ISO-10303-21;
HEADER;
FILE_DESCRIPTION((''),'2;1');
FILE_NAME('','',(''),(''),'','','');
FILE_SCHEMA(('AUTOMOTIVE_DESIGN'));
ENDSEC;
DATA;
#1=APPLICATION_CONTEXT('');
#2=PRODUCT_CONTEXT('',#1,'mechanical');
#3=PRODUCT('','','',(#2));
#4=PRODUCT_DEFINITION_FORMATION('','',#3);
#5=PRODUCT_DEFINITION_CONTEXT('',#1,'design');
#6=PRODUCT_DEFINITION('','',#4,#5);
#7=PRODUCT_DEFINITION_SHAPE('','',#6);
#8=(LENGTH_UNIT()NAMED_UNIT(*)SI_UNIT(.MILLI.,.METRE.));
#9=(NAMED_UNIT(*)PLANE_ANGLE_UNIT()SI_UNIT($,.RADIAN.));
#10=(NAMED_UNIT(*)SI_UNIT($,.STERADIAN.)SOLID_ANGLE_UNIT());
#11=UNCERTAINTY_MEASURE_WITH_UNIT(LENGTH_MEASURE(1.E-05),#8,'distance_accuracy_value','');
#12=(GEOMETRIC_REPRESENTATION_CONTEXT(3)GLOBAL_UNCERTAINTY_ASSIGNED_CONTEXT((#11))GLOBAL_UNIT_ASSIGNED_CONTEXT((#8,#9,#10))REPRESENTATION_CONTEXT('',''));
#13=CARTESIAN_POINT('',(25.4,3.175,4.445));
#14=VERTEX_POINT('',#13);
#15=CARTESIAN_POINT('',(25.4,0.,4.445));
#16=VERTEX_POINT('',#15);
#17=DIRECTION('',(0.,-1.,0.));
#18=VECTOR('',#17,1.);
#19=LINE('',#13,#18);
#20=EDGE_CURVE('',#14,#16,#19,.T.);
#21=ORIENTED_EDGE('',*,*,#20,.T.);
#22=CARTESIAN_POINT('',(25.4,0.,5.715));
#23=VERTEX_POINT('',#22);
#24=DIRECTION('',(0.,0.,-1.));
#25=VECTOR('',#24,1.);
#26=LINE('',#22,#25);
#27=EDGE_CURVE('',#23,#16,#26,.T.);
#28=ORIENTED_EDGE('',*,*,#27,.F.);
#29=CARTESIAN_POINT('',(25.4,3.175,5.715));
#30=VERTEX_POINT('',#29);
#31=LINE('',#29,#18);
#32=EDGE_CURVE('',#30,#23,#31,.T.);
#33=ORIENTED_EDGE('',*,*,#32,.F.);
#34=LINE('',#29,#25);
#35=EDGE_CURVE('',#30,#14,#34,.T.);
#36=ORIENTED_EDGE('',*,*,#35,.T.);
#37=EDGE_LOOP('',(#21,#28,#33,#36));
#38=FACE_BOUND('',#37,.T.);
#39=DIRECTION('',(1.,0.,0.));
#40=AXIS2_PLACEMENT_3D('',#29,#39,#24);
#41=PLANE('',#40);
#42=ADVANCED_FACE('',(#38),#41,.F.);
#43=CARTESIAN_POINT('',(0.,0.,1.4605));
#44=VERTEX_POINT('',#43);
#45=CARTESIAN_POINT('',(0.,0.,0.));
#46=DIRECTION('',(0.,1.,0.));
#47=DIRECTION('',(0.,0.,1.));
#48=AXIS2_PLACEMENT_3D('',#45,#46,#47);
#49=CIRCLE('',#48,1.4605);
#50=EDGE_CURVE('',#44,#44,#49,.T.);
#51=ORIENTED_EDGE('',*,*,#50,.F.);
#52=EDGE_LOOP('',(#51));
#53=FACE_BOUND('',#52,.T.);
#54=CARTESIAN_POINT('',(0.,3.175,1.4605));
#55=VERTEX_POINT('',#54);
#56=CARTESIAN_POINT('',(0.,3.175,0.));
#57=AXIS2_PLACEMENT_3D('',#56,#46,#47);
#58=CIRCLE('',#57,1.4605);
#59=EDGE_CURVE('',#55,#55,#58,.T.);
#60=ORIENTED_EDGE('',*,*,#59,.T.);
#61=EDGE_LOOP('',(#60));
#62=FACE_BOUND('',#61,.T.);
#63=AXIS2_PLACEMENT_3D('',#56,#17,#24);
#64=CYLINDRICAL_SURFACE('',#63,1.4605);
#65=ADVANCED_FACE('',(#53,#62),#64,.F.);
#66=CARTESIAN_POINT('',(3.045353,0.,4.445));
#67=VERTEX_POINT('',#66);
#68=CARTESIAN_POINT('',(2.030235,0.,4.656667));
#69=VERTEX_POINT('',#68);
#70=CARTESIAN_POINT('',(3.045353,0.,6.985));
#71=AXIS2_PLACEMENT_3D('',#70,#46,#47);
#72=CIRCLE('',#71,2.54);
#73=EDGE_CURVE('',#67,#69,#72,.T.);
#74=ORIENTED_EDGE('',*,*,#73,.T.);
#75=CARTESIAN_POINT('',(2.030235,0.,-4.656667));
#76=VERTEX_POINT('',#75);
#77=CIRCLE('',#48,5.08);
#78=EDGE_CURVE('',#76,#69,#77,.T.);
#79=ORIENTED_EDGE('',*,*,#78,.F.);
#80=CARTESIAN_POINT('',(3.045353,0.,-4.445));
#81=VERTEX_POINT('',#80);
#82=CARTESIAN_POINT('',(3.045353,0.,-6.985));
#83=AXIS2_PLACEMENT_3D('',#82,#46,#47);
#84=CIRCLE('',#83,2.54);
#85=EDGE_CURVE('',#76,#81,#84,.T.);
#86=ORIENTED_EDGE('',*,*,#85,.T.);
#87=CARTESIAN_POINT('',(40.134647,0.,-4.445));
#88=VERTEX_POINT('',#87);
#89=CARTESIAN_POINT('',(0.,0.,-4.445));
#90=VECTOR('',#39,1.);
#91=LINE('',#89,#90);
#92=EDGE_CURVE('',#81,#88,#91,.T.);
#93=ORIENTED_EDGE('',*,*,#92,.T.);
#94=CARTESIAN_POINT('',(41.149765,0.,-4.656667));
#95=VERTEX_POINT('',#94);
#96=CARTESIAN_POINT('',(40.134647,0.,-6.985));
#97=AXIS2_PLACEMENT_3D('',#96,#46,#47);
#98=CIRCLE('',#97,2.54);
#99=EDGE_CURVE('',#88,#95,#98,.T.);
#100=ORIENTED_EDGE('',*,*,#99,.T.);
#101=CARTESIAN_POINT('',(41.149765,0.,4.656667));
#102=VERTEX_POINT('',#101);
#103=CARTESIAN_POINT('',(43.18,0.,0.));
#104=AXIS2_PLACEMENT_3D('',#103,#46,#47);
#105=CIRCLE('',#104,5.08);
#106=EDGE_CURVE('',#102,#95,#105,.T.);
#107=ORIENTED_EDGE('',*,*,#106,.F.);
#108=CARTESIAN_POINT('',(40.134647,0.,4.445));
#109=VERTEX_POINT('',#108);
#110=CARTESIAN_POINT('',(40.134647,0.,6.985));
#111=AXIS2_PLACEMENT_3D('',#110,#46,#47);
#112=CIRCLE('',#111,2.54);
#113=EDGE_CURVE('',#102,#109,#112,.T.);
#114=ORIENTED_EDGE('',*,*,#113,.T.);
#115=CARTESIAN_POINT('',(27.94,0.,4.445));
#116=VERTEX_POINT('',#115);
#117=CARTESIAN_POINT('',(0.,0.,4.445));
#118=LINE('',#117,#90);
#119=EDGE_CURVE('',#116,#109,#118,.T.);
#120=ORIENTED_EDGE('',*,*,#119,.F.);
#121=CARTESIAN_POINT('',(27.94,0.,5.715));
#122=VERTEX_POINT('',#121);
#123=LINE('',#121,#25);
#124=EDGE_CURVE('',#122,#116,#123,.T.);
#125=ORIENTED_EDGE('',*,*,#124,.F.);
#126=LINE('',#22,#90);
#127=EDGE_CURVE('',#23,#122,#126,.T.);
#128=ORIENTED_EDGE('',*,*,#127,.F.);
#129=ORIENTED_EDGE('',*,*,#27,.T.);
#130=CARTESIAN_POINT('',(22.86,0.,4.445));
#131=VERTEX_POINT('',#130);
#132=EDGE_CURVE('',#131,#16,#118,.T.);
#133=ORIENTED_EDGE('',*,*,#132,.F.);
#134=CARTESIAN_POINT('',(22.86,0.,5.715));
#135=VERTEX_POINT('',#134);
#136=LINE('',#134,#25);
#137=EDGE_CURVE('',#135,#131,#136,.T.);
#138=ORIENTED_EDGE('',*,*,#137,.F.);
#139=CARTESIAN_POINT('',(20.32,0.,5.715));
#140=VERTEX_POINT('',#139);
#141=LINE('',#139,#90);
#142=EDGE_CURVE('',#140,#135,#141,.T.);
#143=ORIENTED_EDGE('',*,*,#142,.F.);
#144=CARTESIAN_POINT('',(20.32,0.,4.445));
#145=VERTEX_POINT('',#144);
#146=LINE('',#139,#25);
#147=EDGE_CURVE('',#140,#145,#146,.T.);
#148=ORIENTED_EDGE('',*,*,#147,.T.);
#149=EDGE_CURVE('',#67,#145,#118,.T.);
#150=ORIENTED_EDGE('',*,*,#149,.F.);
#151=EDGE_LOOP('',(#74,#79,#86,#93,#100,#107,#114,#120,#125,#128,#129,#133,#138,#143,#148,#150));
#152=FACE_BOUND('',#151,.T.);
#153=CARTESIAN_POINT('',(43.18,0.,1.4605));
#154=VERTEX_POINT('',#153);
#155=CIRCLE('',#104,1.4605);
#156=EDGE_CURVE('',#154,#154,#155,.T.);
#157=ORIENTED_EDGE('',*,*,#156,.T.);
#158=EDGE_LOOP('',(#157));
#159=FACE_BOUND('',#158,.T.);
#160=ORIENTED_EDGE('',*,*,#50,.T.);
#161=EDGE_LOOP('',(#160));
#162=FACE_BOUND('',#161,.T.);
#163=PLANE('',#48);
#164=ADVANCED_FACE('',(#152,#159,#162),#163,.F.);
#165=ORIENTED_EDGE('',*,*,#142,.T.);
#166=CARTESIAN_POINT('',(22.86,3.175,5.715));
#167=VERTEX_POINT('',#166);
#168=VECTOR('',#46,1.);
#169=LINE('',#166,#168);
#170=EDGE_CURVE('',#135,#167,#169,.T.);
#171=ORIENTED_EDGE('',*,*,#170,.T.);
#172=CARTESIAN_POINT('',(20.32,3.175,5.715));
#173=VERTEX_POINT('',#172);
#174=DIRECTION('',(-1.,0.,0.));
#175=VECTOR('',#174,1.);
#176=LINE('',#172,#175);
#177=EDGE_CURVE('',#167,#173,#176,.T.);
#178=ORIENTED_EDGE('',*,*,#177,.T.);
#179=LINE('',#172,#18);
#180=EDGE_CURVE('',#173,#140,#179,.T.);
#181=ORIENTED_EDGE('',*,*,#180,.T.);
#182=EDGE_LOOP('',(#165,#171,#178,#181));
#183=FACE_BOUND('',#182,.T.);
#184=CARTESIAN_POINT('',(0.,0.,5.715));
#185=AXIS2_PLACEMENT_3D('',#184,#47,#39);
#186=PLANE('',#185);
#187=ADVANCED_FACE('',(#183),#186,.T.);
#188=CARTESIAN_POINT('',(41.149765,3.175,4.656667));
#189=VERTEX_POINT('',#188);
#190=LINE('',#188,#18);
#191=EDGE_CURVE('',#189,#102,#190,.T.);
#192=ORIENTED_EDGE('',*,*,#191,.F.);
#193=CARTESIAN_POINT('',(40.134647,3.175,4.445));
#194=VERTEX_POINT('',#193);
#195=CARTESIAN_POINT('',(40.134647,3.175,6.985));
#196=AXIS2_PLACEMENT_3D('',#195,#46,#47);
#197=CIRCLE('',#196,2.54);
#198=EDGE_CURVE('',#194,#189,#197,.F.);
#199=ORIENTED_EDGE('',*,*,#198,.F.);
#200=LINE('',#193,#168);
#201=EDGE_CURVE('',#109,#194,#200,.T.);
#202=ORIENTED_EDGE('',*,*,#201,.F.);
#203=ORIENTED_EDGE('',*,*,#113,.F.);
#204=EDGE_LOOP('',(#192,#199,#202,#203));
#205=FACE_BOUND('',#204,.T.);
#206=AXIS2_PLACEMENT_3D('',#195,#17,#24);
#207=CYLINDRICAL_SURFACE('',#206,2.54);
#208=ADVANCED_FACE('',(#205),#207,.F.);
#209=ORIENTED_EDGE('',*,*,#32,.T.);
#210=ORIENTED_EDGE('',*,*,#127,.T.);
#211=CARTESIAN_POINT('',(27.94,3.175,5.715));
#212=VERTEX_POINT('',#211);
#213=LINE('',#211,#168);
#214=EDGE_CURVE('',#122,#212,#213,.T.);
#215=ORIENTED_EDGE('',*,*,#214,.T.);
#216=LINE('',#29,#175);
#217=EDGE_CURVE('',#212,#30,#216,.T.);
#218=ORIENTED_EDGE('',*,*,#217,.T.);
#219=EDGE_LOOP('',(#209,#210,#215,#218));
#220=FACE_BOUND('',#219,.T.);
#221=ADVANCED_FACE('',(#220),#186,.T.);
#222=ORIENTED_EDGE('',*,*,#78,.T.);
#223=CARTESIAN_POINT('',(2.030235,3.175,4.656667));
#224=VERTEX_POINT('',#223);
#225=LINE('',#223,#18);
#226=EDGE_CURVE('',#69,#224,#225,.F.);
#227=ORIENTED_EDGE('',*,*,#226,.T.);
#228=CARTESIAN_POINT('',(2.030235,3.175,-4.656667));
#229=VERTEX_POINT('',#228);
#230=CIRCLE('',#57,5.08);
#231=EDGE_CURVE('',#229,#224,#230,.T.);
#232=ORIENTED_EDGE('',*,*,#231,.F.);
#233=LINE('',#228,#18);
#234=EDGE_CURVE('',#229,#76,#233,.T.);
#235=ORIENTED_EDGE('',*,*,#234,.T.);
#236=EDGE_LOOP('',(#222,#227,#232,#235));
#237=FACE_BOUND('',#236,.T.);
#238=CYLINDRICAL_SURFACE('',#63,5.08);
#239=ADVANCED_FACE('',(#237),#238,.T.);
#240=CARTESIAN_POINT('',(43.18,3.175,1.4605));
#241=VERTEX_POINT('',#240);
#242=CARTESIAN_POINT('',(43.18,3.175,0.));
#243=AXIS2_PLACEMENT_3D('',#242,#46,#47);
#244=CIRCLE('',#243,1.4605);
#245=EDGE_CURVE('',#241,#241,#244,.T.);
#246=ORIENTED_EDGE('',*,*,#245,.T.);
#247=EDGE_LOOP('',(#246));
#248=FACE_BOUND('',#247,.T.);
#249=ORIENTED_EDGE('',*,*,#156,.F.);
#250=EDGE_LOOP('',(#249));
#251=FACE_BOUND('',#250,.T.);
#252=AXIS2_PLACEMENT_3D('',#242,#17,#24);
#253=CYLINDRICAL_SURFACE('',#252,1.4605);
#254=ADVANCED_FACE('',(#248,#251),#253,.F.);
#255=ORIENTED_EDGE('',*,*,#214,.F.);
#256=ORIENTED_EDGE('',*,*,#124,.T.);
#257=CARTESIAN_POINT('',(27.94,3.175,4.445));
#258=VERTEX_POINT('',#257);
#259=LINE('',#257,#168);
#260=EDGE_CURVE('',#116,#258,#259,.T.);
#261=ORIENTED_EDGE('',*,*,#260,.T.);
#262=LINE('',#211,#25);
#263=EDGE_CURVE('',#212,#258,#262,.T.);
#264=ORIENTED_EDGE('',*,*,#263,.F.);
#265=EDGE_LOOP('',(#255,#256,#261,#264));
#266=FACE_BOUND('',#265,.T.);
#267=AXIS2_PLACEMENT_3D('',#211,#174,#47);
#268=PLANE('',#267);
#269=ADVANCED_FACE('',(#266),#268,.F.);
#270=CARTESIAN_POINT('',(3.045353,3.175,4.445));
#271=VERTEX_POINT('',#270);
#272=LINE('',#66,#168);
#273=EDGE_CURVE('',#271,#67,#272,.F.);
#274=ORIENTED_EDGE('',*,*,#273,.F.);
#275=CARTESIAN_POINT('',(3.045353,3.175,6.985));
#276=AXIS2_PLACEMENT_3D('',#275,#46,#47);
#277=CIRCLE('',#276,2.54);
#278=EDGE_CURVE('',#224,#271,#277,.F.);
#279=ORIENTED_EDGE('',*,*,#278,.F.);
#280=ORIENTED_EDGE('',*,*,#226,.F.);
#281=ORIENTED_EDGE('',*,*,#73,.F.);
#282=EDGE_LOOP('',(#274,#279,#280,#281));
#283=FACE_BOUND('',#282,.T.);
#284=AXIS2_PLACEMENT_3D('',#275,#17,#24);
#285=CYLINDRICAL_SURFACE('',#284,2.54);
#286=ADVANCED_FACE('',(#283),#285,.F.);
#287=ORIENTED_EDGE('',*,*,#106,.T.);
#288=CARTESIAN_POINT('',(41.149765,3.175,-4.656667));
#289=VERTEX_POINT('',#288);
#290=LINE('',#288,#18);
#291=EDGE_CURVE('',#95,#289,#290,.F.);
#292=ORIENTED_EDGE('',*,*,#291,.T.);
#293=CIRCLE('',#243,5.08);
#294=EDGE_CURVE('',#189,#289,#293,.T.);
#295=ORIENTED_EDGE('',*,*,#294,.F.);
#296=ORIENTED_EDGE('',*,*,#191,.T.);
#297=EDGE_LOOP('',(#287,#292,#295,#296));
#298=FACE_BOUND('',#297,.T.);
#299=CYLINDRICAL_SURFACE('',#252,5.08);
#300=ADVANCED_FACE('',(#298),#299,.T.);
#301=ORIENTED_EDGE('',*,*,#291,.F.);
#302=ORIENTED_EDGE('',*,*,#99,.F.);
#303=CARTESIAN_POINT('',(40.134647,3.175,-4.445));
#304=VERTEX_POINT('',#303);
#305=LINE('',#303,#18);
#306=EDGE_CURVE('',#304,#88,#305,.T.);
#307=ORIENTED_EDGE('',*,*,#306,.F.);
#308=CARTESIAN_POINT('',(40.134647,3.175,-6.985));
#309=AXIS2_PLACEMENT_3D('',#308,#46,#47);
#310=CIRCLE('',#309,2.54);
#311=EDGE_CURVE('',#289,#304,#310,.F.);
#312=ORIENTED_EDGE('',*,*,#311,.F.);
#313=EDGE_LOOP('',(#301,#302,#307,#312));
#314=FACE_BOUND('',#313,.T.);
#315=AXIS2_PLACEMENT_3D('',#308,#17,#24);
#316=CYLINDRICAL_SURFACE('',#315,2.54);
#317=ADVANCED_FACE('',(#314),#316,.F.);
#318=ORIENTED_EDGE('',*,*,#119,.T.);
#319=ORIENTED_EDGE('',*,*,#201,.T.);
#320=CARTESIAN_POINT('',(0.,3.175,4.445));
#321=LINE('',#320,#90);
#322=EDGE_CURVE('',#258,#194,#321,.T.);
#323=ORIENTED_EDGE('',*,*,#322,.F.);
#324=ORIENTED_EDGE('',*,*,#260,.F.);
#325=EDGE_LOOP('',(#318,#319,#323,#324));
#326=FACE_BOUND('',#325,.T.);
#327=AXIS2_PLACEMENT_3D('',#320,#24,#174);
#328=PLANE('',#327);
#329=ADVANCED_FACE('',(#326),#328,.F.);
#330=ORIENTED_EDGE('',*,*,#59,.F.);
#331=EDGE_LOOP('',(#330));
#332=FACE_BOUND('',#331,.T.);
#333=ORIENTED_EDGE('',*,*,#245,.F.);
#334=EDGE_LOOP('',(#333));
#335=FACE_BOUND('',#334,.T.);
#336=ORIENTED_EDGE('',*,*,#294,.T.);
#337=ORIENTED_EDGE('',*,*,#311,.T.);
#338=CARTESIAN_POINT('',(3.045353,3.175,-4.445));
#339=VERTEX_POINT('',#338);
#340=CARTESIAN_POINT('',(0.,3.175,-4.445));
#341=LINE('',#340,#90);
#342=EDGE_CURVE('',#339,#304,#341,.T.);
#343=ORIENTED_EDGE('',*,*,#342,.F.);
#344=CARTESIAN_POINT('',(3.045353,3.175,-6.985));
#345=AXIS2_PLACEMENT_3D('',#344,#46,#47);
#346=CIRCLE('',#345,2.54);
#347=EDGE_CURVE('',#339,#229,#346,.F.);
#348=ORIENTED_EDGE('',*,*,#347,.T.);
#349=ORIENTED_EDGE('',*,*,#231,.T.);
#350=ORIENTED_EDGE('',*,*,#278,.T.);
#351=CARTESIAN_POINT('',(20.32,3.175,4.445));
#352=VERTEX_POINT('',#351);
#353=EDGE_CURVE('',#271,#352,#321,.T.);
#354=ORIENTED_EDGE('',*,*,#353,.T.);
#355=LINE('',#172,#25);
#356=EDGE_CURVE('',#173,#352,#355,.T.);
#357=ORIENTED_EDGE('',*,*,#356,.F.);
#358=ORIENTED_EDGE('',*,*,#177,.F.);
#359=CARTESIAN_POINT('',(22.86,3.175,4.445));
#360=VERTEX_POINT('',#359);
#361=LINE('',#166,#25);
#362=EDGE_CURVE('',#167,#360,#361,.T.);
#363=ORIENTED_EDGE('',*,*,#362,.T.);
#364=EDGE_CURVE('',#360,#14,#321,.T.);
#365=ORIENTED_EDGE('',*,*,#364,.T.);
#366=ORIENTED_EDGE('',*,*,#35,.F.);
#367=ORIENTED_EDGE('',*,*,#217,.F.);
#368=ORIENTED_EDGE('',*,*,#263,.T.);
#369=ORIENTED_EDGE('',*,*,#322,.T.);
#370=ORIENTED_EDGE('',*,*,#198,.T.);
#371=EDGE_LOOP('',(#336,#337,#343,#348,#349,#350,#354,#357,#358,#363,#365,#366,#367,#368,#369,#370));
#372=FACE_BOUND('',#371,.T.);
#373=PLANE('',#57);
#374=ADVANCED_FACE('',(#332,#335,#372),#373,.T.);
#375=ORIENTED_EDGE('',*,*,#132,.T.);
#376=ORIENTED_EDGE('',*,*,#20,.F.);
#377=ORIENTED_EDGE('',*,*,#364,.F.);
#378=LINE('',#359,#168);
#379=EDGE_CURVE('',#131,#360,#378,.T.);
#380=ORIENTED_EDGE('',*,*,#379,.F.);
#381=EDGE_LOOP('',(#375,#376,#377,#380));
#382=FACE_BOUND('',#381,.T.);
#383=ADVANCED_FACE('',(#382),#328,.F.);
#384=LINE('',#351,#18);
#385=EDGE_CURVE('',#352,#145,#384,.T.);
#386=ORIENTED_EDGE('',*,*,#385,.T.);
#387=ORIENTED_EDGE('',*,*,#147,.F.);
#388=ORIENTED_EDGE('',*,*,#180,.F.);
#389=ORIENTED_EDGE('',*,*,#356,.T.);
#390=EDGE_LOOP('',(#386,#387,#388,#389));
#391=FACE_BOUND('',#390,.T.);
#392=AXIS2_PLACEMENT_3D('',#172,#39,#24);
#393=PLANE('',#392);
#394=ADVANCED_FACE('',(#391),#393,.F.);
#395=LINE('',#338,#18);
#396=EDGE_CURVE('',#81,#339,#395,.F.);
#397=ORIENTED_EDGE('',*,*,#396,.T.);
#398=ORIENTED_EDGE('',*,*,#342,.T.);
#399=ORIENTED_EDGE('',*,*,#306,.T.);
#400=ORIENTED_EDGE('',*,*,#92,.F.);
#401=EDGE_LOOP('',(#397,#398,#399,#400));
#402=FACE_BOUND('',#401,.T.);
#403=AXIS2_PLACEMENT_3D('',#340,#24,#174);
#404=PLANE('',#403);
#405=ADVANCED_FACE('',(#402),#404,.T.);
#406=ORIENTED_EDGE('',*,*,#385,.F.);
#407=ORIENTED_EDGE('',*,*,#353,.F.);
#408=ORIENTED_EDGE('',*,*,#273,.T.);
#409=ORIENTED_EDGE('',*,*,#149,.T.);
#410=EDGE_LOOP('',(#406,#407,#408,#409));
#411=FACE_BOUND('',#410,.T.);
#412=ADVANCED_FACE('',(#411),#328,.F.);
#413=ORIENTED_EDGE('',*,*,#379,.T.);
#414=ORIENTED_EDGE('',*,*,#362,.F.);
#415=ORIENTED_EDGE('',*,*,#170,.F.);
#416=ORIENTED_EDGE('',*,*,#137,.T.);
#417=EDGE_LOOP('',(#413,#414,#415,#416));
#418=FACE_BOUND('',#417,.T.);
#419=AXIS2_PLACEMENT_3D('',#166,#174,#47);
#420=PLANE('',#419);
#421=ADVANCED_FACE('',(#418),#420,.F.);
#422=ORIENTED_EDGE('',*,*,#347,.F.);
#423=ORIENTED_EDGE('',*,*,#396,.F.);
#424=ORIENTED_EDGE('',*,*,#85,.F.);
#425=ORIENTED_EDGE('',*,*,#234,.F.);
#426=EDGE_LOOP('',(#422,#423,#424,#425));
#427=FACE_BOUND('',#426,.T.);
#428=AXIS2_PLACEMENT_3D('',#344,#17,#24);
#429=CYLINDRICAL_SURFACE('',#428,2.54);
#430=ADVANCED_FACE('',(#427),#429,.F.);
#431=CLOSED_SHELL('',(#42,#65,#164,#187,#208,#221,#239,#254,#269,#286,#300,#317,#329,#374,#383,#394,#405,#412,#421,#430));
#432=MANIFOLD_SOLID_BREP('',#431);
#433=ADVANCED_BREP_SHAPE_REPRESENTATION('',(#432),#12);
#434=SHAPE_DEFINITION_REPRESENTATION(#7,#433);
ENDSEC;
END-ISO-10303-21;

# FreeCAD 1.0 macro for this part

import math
import FreeCAD as App
import Part
import Sketcher

V = App.Vector
Q = App.Units.Quantity


def edges_at(feature, points):
    """Names of the edges that pass closest to the given points."""
    edges = feature.Shape.Edges
    near = lambda p: min(range(len(edges)), key=lambda i: edges[i].distToShape(Part.Vertex(*p))[0])
    return sorted({f"Edge{near(p) + 1}" for p in points})


def add_polygon(sketch, points):
    """Adds a closed chain of lines whose ends are joined by coincident constraints."""
    first, n = sketch.GeometryCount, len(points)
    for a, b in zip(points, points[1:] + points[:1]):
        sketch.addGeometry(Part.LineSegment(App.Vector(*a, 0), App.Vector(*b, 0)), False)
    for i in range(n):
        sketch.addConstraint(Sketcher.Constraint("Coincident", first + i, 2, first + (i + 1) % n, 1))

doc = App.newDocument("Part")
body = doc.addObject("PartDesign::Body", "Body")

# Sketch on XZ plane
sketch1 = body.newObject("Sketcher::SketchObject", "Sketch")
sketch1.AttachmentSupport = (doc.getObject("XZ_Plane"), [""])
sketch1.MapMode = "FlatFace"
sketch1.addGeometry(Part.ArcOfCircle(Part.Circle(V(0, 0, 0), V(0, 0, 1), 5.1), math.radians(61), math.radians(299)), False)
sketch1.addGeometry(Part.LineSegment(V(2.5, 4.4, 0), V(40.7, 4.4, 0)), False)
sketch1.addGeometry(Part.ArcOfCircle(Part.Circle(V(43.2, 0, 0), V(0, 0, 1), 5.1), math.radians(-119), math.radians(119)), False)
sketch1.addGeometry(Part.LineSegment(V(40.7, -4.4, 0), V(2.5, -4.4, 0)), False)
sketch1.addGeometry(Part.Circle(V(0, 0, 0), V(0, 0, 1), 1.5), False)
sketch1.addGeometry(Part.Circle(V(43.2, 0, 0), V(0, 0, 1), 1.5), False)
sketch1.addConstraint(Sketcher.Constraint("Coincident", 0, 1, 1, 1))
sketch1.addConstraint(Sketcher.Constraint("Coincident", 1, 2, 2, 2))
sketch1.addConstraint(Sketcher.Constraint("Coincident", 2, 1, 3, 1))
sketch1.addConstraint(Sketcher.Constraint("Coincident", 3, 2, 0, 2))
sketch1.addConstraint(Sketcher.Constraint("Horizontal", 1))
sketch1.addConstraint(Sketcher.Constraint("Horizontal", 3))
sketch1.addConstraint(Sketcher.Constraint("Coincident", 0, 3, -1, 1))
sketch1.addConstraint(Sketcher.Constraint("Coincident", 4, 3, -1, 1))
sketch1.addConstraint(Sketcher.Constraint("Coincident", 5, 3, 2, 3))
sketch1.addConstraint(Sketcher.Constraint("Equal", 0, 2))
sketch1.addConstraint(Sketcher.Constraint("Equal", 4, 5))
sketch1.addConstraint(Sketcher.Constraint("Symmetric", 1, 2, 2, 1, -1))
sketch1.addConstraint(Sketcher.Constraint("Radius", 0, Q("0.2 in")))
sketch1.addConstraint(Sketcher.Constraint("Diameter", 4, Q("0.115 in")))
sketch1.addConstraint(Sketcher.Constraint("DistanceX", -1, 1, 2, 3, Q("1.7 in")))
sketch1.addConstraint(Sketcher.Constraint("DistanceY", 2, 1, 1, 2, Q("0.35 in")))
pad1 = body.newObject("PartDesign::Pad", "Pad")
pad1.Profile = sketch1
pad1.Length = Q("0.125 in")
pad1.Reversed = True
doc.recompute()

fillet = body.newObject("PartDesign::Fillet", "Fillet")
fillet.Base = (pad1, edges_at(pad1, [
    (2.459, 1.587, -4.445),
    (40.721, 1.587, -4.445),
    (40.721, 1.587, 4.445),
    (2.459, 1.587, 4.445),
]))
fillet.Radius = Q("0.1 in")

# Sketch on XY plane
sketch2 = body.newObject("Sketcher::SketchObject", "Sketch001")
sketch2.AttachmentSupport = (doc.getObject("XY_Plane"), [""])
sketch2.MapMode = "FlatFace"
sketch2.AttachmentOffset = App.Placement(V(0, 0, 0.175 * 25.4), App.Rotation())
add_polygon(sketch2, [(25.4, 3.2), (25.4, 0), (27.9, 0), (27.9, 3.2)])  # lines 0-3
add_polygon(sketch2, [(20.3, 3.2), (20.3, 0), (22.9, 0), (22.9, 3.2)])  # lines 4-7
sketch2.addConstraint(Sketcher.Constraint("Vertical", 0))
sketch2.addConstraint(Sketcher.Constraint("Horizontal", 1))
sketch2.addConstraint(Sketcher.Constraint("Vertical", 2))
sketch2.addConstraint(Sketcher.Constraint("Horizontal", 3))
sketch2.addConstraint(Sketcher.Constraint("Vertical", 4))
sketch2.addConstraint(Sketcher.Constraint("Horizontal", 5))
sketch2.addConstraint(Sketcher.Constraint("Vertical", 6))
sketch2.addConstraint(Sketcher.Constraint("Horizontal", 7))
sketch2.addConstraint(Sketcher.Constraint("PointOnObject", 0, 2, -1))
sketch2.addConstraint(Sketcher.Constraint("PointOnObject", 4, 2, -1))
sketch2.addConstraint(Sketcher.Constraint("Horizontal", 3, 2, 6, 2))
sketch2.addConstraint(Sketcher.Constraint("Equal", 3, 5))
sketch2.addConstraint(Sketcher.Constraint("DistanceX", 1, 1, 1, 2, Q("0.1 in")))
sketch2.addConstraint(Sketcher.Constraint("DistanceX", -1, 1, 0, 2, Q("1 in")))
sketch2.addConstraint(Sketcher.Constraint("DistanceX", -1, 1, 4, 2, Q("0.8 in")))
sketch2.addConstraint(Sketcher.Constraint("DistanceY", 0, 2, 0, 1, Q("0.125 in")))
pad2 = body.newObject("PartDesign::Pad", "Pad001")
pad2.Profile = sketch2
pad2.Length = Q("0.05 in")

doc.recompute()
